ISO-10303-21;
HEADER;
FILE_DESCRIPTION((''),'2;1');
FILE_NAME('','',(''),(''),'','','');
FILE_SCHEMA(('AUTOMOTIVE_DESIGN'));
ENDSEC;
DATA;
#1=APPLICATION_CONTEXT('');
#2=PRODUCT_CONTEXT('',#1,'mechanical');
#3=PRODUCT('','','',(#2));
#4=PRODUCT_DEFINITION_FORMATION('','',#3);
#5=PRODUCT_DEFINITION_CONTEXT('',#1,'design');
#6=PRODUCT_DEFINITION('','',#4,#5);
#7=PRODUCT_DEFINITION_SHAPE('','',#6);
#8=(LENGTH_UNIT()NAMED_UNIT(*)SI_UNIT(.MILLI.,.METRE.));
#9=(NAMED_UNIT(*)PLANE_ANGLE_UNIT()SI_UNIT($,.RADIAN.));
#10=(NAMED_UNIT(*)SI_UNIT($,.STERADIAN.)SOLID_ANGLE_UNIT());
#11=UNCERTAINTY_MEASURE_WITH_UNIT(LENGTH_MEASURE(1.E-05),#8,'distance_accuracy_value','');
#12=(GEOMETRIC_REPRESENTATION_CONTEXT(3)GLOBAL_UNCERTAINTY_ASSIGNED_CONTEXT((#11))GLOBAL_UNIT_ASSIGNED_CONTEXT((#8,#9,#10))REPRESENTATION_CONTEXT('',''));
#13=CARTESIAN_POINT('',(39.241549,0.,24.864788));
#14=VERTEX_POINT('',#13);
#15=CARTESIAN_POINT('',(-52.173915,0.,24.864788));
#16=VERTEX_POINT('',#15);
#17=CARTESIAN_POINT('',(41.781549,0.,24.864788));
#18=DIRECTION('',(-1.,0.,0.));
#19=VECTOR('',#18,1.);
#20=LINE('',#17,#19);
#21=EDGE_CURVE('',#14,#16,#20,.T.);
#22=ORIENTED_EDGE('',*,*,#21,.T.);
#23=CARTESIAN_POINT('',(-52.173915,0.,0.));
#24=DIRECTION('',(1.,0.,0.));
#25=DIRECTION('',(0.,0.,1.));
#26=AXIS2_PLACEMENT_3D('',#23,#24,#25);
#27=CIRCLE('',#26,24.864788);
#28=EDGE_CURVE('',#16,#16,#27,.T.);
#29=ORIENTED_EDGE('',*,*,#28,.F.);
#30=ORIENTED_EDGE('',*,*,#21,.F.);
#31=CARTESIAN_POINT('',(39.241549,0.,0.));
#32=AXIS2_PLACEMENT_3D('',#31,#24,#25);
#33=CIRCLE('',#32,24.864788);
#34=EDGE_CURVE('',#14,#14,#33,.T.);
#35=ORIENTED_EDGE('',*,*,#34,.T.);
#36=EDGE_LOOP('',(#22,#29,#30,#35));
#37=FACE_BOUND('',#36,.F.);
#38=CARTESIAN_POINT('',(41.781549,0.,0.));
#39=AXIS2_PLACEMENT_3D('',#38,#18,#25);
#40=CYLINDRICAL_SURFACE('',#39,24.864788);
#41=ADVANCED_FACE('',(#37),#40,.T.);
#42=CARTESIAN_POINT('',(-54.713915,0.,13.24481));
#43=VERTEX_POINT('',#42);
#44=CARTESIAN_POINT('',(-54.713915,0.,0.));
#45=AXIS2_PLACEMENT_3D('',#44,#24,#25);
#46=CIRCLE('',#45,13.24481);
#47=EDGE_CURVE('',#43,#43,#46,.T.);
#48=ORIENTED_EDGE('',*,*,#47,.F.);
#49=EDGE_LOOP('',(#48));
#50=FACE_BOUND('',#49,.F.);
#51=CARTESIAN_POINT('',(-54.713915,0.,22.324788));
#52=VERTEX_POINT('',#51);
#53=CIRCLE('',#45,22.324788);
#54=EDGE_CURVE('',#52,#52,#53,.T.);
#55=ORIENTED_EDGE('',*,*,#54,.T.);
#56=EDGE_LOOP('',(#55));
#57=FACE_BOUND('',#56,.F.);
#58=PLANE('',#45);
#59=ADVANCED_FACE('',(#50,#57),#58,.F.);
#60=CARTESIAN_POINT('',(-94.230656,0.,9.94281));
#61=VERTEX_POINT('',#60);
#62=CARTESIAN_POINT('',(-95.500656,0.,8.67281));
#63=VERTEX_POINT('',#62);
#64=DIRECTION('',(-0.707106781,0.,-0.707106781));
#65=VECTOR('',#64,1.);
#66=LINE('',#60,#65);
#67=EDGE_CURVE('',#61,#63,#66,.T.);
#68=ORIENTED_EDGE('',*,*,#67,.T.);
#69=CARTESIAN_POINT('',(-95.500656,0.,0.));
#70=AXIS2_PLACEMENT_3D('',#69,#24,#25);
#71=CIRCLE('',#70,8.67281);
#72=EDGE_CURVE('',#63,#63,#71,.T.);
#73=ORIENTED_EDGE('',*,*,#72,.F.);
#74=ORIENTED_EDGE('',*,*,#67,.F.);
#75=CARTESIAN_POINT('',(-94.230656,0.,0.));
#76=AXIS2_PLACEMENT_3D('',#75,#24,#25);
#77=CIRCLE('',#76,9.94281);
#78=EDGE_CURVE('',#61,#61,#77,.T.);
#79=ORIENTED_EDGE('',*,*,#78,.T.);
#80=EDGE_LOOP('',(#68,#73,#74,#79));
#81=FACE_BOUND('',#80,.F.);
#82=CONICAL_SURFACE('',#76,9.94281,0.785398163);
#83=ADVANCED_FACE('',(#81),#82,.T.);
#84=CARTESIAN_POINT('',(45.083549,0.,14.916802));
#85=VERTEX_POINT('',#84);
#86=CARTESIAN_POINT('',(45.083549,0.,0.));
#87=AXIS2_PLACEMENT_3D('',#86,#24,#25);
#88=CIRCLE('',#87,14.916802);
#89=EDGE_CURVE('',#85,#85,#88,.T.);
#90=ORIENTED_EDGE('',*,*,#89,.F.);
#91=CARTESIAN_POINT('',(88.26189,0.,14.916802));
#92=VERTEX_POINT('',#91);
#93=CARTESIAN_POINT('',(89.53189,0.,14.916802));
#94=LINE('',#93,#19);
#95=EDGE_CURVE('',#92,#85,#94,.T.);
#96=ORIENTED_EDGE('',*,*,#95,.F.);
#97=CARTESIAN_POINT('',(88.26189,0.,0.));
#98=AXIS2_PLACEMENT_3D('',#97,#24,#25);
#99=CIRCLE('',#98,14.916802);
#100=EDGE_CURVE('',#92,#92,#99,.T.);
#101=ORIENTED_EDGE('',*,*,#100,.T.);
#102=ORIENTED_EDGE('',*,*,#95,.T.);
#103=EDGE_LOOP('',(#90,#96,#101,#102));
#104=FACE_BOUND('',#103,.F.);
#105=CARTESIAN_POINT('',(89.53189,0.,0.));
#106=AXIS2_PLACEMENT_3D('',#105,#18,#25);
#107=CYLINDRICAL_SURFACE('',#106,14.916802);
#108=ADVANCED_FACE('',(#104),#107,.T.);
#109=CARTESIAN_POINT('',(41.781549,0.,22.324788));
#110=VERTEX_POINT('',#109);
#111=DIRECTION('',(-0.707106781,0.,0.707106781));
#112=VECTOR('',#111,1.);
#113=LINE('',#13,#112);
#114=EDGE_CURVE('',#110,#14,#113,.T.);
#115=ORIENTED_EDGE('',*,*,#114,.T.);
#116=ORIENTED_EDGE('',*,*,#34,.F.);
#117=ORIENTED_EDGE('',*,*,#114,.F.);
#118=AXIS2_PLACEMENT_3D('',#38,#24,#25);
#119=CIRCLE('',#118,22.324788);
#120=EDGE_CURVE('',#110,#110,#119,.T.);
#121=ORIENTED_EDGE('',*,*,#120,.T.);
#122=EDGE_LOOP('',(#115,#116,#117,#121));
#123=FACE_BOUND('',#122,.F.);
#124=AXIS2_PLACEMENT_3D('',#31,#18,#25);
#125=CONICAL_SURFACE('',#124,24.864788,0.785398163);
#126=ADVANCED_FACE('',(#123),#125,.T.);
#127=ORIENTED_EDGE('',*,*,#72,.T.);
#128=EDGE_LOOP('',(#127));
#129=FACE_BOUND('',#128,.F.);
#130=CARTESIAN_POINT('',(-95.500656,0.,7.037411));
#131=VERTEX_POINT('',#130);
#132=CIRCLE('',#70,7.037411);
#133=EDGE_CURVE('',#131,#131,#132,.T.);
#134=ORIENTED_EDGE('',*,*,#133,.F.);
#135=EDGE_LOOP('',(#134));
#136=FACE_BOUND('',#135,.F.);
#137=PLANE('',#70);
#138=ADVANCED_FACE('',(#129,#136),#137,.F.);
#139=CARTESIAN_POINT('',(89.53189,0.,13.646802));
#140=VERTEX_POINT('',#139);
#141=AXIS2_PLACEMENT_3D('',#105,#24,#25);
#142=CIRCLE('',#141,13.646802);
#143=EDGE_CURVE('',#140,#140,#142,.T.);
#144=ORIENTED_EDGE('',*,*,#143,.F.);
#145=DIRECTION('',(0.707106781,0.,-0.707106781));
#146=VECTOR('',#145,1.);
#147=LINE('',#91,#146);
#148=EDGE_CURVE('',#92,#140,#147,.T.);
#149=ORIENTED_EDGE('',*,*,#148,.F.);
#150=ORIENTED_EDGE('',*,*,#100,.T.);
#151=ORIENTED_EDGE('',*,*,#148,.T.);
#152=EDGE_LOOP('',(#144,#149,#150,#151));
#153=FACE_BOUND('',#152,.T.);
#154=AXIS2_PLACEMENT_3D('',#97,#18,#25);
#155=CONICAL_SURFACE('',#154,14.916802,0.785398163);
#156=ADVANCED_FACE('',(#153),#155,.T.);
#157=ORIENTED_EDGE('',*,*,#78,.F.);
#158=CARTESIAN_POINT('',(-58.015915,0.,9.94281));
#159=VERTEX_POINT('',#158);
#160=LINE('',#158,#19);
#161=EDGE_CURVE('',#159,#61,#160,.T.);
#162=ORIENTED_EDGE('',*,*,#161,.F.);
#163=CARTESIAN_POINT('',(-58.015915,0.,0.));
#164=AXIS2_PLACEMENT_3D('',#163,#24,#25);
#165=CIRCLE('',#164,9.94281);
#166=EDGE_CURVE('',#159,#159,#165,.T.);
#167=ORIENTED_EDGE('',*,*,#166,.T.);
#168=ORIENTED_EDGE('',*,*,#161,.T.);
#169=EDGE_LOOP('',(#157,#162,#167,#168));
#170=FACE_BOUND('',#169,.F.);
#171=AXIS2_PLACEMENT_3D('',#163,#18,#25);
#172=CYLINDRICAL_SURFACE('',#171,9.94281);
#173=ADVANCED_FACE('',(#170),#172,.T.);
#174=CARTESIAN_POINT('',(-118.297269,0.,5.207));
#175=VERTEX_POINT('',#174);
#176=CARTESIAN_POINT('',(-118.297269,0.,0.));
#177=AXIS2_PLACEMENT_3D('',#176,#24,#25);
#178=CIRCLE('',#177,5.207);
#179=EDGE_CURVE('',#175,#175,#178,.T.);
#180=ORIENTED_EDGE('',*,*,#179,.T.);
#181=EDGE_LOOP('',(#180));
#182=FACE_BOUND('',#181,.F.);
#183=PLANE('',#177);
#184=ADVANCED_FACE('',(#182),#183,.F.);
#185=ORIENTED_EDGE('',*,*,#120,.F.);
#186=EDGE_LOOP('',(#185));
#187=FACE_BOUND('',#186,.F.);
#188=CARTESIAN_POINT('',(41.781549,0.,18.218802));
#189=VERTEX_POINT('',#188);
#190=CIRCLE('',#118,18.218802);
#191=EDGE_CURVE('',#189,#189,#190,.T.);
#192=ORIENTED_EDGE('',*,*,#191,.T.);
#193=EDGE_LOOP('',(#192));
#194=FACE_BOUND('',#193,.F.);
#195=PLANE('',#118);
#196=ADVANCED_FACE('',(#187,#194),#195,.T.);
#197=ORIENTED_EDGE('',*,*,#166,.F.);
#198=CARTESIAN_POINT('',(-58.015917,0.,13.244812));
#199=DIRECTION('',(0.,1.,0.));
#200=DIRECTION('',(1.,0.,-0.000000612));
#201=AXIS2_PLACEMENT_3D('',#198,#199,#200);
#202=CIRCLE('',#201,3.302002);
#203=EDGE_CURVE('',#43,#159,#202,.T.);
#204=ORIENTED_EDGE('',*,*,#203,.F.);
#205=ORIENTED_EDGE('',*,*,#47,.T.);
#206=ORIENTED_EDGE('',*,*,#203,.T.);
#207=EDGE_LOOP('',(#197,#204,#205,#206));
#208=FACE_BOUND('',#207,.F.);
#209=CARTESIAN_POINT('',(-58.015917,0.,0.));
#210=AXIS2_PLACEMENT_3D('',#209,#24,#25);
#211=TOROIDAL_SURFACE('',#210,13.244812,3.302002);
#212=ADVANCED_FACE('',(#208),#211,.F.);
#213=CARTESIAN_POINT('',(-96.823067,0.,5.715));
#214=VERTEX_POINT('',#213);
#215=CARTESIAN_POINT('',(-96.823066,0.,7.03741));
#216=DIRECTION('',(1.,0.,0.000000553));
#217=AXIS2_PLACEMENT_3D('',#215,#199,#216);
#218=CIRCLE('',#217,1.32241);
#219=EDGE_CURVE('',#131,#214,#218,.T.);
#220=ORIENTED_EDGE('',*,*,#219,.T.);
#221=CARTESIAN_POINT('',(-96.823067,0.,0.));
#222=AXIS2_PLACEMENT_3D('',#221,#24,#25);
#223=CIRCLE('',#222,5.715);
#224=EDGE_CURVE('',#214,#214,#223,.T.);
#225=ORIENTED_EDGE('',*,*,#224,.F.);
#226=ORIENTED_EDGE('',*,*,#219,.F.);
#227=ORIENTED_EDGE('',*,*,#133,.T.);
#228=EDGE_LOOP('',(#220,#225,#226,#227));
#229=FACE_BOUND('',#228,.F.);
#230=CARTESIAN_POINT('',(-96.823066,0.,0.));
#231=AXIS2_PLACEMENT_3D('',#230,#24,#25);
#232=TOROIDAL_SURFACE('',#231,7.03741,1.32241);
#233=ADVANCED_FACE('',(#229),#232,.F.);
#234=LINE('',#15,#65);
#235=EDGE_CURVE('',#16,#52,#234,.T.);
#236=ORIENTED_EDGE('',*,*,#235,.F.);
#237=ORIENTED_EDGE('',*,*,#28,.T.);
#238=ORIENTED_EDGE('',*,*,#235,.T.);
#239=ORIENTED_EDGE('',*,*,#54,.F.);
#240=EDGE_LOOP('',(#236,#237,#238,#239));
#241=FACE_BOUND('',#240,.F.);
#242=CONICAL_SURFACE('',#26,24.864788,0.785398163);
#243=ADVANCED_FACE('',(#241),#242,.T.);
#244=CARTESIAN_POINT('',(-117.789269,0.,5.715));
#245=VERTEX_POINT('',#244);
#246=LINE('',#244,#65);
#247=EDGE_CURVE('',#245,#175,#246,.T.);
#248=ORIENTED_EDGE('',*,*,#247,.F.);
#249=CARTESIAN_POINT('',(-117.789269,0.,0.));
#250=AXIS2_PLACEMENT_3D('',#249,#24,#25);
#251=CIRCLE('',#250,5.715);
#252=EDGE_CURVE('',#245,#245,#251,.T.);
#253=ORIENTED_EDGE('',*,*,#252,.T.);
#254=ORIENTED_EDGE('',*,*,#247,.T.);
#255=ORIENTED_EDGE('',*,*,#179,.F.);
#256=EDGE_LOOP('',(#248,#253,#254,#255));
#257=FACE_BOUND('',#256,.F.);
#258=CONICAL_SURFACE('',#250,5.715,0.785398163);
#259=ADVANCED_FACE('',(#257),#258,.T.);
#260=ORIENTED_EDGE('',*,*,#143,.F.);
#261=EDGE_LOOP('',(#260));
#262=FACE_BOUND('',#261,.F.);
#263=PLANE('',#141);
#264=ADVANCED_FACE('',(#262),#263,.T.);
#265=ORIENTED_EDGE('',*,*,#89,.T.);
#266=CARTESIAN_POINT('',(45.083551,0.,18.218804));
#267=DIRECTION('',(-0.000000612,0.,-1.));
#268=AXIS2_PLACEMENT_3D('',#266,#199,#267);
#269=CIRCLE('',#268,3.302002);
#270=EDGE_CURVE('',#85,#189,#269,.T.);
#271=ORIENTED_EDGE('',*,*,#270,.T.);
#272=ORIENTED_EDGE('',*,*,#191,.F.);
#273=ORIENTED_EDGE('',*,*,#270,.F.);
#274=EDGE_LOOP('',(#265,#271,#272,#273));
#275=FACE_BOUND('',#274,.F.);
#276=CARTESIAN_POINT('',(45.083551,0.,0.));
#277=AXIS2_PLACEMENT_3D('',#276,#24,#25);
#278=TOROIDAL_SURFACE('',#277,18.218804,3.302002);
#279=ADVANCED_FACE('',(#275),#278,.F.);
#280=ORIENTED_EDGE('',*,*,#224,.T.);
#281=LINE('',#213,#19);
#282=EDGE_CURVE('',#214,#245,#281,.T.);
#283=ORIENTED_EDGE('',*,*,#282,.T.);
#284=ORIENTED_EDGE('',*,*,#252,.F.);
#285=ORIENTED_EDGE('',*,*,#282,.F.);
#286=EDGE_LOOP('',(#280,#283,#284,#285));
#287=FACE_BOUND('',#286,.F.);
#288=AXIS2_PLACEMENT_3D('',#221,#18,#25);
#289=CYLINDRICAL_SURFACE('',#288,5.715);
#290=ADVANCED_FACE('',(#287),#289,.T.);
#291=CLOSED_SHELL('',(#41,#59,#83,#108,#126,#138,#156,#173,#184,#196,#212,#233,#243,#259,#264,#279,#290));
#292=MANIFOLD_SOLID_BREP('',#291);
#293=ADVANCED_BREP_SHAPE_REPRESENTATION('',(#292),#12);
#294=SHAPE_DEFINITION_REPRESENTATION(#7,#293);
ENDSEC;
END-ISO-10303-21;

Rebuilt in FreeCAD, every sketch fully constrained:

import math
import FreeCAD as App
import Part
import Sketcher
from FreeCAD import Vector
Q = App.Units.Quantity


def edges_at(feature, points):
    """Names of the edges that pass closest to the given points."""
    edges = feature.Shape.Edges
    near = lambda p: min(range(len(edges)), key=lambda i: edges[i].distToShape(Part.Vertex(*p))[0])
    return sorted({f"Edge{near(p) + 1}" for p in points})

doc = App.newDocument("Part")
body = doc.addObject("PartDesign::Body", "Body")

sketch1 = body.newObject("Sketcher::SketchObject", "Sketch")
sketch1.AttachmentSupport = (doc.getObject("XZ_Plane"), [""])
sketch1.MapMode = "FlatFace"
sketch1.addGeometry(Part.LineSegment(Vector(-58.015915, 9.94281, 0), Vector(-95.500656, 9.94281, 0)), False)
sketch1.addGeometry(Part.LineSegment(Vector(-95.500656, 9.94281, 0), Vector(-95.500656, 7.037411, 0)), False)
sketch1.addGeometry(Part.ArcOfCircle(Part.Circle(Vector(-96.823066, 7.03741, 0), Vector(0, 0, 1), 1.32241), math.radians(-90.000032), math.radians(0.000032)), False)
sketch1.addGeometry(Part.LineSegment(Vector(-96.823067, 5.715, 0), Vector(-118.297269, 5.715, 0)), False)
sketch1.addGeometry(Part.LineSegment(Vector(-118.297269, 5.715, 0), Vector(-118.297269, 0, 0)), False)
sketch1.addGeometry(Part.LineSegment(Vector(-118.297269, 0, 0), Vector(89.53189, 0, 0)), False)
sketch1.addGeometry(Part.LineSegment(Vector(89.53189, 0, 0), Vector(89.53189, 14.916802, 0)), False)
sketch1.addGeometry(Part.LineSegment(Vector(89.53189, 14.916802, 0), Vector(45.083549, 14.916802, 0)), False)
sketch1.addGeometry(Part.ArcOfCircle(Part.Circle(Vector(45.083551, 18.218804, 0), Vector(0, 0, 1), 3.302002), math.radians(-179.999965), math.radians(-90.000035)), False)
sketch1.addGeometry(Part.LineSegment(Vector(41.781549, 18.218802, 0), Vector(41.781549, 24.864788, 0)), False)
sketch1.addGeometry(Part.LineSegment(Vector(41.781549, 24.864788, 0), Vector(-54.713915, 24.864788, 0)), False)
sketch1.addGeometry(Part.LineSegment(Vector(-54.713915, 24.864788, 0), Vector(-54.713915, 13.24481, 0)), False)
sketch1.addGeometry(Part.ArcOfCircle(Part.Circle(Vector(-58.015917, 13.244812, 0), Vector(0, 0, 1), 3.302002), math.radians(-89.999965), math.radians(-0.000035)), False)
sketch1.addConstraint(Sketcher.Constraint("Coincident", 0, 2, 1, 1))
sketch1.addConstraint(Sketcher.Constraint("Tangent", 1, 2, 2, 2))
sketch1.addConstraint(Sketcher.Constraint("Tangent", 2, 1, 3, 1))
sketch1.addConstraint(Sketcher.Constraint("Coincident", 3, 2, 4, 1))
sketch1.addConstraint(Sketcher.Constraint("Coincident", 4, 2, 5, 1))
sketch1.addConstraint(Sketcher.Constraint("Coincident", 5, 2, 6, 1))
sketch1.addConstraint(Sketcher.Constraint("Coincident", 6, 2, 7, 1))
sketch1.addConstraint(Sketcher.Constraint("Tangent", 7, 2, 8, 2))
sketch1.addConstraint(Sketcher.Constraint("Tangent", 8, 1, 9, 1))
sketch1.addConstraint(Sketcher.Constraint("Coincident", 9, 2, 10, 1))
sketch1.addConstraint(Sketcher.Constraint("Coincident", 10, 2, 11, 1))
sketch1.addConstraint(Sketcher.Constraint("Tangent", 11, 2, 12, 2))
sketch1.addConstraint(Sketcher.Constraint("Tangent", 12, 1, 0, 1))
sketch1.addConstraint(Sketcher.Constraint("Horizontal", 0))
sketch1.addConstraint(Sketcher.Constraint("Vertical", 1))
sketch1.addConstraint(Sketcher.Constraint("Horizontal", 3))
sketch1.addConstraint(Sketcher.Constraint("Vertical", 4))
sketch1.addConstraint(Sketcher.Constraint("Horizontal", 5))
sketch1.addConstraint(Sketcher.Constraint("Vertical", 6))
sketch1.addConstraint(Sketcher.Constraint("Horizontal", 7))
sketch1.addConstraint(Sketcher.Constraint("Vertical", 9))
sketch1.addConstraint(Sketcher.Constraint("Horizontal", 10))
sketch1.addConstraint(Sketcher.Constraint("Vertical", 11))
sketch1.addConstraint(Sketcher.Constraint("Equal", 8, 12))
sketch1.addConstraint(Sketcher.Constraint("PointOnObject", 4, 2, -1))
sketch1.addConstraint(Sketcher.Constraint("Radius", 8, Q("0.1300001 in")))
sketch1.addConstraint(Sketcher.Constraint("DistanceY", 4, 2, 4, 1, Q("0.225 in")))
sketch1.addConstraint(Sketcher.Constraint("Radius", 2, 1.32241))
sketch1.addConstraint(Sketcher.Constraint("DistanceY", 1, 2, 1, 1, 2.905399))
sketch1.addConstraint(Sketcher.Constraint("DistanceX", 0, 2, 0, 1, 37.484741))
sketch1.addConstraint(Sketcher.Constraint("DistanceX", 5, 1, 5, 2, 207.829159))
sketch1.addConstraint(Sketcher.Constraint("DistanceX", 7, 2, 7, 1, 44.448341))
sketch1.addConstraint(Sketcher.Constraint("DistanceY", 11, 2, 11, 1, 11.619978))
sketch1.addConstraint(Sketcher.Constraint("DistanceY", -1, 1, 8, 1, 18.218802))
sketch1.addConstraint(Sketcher.Constraint("DistanceX", 3, 2, 3, 1, 21.474202))
sketch1.addConstraint(Sketcher.Constraint("DistanceX", -1, 1, 8, 3, 45.083551))
revolution = body.newObject("PartDesign::Revolution", "Revolution")
revolution.Profile = sketch1
revolution.ReferenceAxis = (sketch1, ["H_Axis"])
revolution.Angle = 360
doc.recompute()

chamfer = body.newObject("PartDesign::Chamfer", "Chamfer")
chamfer.Base = (revolution, edges_at(revolution, [(41.782, 0, -24.865)]))
chamfer.Size = Q("0.1 in")
doc.recompute()

chamfer2 = body.newObject("PartDesign::Chamfer", "Chamfer001")
chamfer2.Base = (chamfer, edges_at(chamfer, [(-54.714, 0, -24.865)]))
chamfer2.Size = Q("0.1 in")
doc.recompute()

chamfer3 = body.newObject("PartDesign::Chamfer", "Chamfer002")
chamfer3.Base = (chamfer2, edges_at(chamfer2, [(-95.501, 0, -9.943)]))
chamfer3.Size = Q("0.05 in")
doc.recompute()

chamfer4 = body.newObject("PartDesign::Chamfer", "Chamfer003")
chamfer4.Base = (chamfer3, edges_at(chamfer3, [(-118.297, 0, -5.715)]))
chamfer4.Size = Q("0.02 in")
doc.recompute()

chamfer5 = body.newObject("PartDesign::Chamfer", "Chamfer004")
chamfer5.Base = (chamfer4, edges_at(chamfer4, [(89.532, 0, -14.917)]))
chamfer5.Size = Q("0.05 in")

doc.recompute()
